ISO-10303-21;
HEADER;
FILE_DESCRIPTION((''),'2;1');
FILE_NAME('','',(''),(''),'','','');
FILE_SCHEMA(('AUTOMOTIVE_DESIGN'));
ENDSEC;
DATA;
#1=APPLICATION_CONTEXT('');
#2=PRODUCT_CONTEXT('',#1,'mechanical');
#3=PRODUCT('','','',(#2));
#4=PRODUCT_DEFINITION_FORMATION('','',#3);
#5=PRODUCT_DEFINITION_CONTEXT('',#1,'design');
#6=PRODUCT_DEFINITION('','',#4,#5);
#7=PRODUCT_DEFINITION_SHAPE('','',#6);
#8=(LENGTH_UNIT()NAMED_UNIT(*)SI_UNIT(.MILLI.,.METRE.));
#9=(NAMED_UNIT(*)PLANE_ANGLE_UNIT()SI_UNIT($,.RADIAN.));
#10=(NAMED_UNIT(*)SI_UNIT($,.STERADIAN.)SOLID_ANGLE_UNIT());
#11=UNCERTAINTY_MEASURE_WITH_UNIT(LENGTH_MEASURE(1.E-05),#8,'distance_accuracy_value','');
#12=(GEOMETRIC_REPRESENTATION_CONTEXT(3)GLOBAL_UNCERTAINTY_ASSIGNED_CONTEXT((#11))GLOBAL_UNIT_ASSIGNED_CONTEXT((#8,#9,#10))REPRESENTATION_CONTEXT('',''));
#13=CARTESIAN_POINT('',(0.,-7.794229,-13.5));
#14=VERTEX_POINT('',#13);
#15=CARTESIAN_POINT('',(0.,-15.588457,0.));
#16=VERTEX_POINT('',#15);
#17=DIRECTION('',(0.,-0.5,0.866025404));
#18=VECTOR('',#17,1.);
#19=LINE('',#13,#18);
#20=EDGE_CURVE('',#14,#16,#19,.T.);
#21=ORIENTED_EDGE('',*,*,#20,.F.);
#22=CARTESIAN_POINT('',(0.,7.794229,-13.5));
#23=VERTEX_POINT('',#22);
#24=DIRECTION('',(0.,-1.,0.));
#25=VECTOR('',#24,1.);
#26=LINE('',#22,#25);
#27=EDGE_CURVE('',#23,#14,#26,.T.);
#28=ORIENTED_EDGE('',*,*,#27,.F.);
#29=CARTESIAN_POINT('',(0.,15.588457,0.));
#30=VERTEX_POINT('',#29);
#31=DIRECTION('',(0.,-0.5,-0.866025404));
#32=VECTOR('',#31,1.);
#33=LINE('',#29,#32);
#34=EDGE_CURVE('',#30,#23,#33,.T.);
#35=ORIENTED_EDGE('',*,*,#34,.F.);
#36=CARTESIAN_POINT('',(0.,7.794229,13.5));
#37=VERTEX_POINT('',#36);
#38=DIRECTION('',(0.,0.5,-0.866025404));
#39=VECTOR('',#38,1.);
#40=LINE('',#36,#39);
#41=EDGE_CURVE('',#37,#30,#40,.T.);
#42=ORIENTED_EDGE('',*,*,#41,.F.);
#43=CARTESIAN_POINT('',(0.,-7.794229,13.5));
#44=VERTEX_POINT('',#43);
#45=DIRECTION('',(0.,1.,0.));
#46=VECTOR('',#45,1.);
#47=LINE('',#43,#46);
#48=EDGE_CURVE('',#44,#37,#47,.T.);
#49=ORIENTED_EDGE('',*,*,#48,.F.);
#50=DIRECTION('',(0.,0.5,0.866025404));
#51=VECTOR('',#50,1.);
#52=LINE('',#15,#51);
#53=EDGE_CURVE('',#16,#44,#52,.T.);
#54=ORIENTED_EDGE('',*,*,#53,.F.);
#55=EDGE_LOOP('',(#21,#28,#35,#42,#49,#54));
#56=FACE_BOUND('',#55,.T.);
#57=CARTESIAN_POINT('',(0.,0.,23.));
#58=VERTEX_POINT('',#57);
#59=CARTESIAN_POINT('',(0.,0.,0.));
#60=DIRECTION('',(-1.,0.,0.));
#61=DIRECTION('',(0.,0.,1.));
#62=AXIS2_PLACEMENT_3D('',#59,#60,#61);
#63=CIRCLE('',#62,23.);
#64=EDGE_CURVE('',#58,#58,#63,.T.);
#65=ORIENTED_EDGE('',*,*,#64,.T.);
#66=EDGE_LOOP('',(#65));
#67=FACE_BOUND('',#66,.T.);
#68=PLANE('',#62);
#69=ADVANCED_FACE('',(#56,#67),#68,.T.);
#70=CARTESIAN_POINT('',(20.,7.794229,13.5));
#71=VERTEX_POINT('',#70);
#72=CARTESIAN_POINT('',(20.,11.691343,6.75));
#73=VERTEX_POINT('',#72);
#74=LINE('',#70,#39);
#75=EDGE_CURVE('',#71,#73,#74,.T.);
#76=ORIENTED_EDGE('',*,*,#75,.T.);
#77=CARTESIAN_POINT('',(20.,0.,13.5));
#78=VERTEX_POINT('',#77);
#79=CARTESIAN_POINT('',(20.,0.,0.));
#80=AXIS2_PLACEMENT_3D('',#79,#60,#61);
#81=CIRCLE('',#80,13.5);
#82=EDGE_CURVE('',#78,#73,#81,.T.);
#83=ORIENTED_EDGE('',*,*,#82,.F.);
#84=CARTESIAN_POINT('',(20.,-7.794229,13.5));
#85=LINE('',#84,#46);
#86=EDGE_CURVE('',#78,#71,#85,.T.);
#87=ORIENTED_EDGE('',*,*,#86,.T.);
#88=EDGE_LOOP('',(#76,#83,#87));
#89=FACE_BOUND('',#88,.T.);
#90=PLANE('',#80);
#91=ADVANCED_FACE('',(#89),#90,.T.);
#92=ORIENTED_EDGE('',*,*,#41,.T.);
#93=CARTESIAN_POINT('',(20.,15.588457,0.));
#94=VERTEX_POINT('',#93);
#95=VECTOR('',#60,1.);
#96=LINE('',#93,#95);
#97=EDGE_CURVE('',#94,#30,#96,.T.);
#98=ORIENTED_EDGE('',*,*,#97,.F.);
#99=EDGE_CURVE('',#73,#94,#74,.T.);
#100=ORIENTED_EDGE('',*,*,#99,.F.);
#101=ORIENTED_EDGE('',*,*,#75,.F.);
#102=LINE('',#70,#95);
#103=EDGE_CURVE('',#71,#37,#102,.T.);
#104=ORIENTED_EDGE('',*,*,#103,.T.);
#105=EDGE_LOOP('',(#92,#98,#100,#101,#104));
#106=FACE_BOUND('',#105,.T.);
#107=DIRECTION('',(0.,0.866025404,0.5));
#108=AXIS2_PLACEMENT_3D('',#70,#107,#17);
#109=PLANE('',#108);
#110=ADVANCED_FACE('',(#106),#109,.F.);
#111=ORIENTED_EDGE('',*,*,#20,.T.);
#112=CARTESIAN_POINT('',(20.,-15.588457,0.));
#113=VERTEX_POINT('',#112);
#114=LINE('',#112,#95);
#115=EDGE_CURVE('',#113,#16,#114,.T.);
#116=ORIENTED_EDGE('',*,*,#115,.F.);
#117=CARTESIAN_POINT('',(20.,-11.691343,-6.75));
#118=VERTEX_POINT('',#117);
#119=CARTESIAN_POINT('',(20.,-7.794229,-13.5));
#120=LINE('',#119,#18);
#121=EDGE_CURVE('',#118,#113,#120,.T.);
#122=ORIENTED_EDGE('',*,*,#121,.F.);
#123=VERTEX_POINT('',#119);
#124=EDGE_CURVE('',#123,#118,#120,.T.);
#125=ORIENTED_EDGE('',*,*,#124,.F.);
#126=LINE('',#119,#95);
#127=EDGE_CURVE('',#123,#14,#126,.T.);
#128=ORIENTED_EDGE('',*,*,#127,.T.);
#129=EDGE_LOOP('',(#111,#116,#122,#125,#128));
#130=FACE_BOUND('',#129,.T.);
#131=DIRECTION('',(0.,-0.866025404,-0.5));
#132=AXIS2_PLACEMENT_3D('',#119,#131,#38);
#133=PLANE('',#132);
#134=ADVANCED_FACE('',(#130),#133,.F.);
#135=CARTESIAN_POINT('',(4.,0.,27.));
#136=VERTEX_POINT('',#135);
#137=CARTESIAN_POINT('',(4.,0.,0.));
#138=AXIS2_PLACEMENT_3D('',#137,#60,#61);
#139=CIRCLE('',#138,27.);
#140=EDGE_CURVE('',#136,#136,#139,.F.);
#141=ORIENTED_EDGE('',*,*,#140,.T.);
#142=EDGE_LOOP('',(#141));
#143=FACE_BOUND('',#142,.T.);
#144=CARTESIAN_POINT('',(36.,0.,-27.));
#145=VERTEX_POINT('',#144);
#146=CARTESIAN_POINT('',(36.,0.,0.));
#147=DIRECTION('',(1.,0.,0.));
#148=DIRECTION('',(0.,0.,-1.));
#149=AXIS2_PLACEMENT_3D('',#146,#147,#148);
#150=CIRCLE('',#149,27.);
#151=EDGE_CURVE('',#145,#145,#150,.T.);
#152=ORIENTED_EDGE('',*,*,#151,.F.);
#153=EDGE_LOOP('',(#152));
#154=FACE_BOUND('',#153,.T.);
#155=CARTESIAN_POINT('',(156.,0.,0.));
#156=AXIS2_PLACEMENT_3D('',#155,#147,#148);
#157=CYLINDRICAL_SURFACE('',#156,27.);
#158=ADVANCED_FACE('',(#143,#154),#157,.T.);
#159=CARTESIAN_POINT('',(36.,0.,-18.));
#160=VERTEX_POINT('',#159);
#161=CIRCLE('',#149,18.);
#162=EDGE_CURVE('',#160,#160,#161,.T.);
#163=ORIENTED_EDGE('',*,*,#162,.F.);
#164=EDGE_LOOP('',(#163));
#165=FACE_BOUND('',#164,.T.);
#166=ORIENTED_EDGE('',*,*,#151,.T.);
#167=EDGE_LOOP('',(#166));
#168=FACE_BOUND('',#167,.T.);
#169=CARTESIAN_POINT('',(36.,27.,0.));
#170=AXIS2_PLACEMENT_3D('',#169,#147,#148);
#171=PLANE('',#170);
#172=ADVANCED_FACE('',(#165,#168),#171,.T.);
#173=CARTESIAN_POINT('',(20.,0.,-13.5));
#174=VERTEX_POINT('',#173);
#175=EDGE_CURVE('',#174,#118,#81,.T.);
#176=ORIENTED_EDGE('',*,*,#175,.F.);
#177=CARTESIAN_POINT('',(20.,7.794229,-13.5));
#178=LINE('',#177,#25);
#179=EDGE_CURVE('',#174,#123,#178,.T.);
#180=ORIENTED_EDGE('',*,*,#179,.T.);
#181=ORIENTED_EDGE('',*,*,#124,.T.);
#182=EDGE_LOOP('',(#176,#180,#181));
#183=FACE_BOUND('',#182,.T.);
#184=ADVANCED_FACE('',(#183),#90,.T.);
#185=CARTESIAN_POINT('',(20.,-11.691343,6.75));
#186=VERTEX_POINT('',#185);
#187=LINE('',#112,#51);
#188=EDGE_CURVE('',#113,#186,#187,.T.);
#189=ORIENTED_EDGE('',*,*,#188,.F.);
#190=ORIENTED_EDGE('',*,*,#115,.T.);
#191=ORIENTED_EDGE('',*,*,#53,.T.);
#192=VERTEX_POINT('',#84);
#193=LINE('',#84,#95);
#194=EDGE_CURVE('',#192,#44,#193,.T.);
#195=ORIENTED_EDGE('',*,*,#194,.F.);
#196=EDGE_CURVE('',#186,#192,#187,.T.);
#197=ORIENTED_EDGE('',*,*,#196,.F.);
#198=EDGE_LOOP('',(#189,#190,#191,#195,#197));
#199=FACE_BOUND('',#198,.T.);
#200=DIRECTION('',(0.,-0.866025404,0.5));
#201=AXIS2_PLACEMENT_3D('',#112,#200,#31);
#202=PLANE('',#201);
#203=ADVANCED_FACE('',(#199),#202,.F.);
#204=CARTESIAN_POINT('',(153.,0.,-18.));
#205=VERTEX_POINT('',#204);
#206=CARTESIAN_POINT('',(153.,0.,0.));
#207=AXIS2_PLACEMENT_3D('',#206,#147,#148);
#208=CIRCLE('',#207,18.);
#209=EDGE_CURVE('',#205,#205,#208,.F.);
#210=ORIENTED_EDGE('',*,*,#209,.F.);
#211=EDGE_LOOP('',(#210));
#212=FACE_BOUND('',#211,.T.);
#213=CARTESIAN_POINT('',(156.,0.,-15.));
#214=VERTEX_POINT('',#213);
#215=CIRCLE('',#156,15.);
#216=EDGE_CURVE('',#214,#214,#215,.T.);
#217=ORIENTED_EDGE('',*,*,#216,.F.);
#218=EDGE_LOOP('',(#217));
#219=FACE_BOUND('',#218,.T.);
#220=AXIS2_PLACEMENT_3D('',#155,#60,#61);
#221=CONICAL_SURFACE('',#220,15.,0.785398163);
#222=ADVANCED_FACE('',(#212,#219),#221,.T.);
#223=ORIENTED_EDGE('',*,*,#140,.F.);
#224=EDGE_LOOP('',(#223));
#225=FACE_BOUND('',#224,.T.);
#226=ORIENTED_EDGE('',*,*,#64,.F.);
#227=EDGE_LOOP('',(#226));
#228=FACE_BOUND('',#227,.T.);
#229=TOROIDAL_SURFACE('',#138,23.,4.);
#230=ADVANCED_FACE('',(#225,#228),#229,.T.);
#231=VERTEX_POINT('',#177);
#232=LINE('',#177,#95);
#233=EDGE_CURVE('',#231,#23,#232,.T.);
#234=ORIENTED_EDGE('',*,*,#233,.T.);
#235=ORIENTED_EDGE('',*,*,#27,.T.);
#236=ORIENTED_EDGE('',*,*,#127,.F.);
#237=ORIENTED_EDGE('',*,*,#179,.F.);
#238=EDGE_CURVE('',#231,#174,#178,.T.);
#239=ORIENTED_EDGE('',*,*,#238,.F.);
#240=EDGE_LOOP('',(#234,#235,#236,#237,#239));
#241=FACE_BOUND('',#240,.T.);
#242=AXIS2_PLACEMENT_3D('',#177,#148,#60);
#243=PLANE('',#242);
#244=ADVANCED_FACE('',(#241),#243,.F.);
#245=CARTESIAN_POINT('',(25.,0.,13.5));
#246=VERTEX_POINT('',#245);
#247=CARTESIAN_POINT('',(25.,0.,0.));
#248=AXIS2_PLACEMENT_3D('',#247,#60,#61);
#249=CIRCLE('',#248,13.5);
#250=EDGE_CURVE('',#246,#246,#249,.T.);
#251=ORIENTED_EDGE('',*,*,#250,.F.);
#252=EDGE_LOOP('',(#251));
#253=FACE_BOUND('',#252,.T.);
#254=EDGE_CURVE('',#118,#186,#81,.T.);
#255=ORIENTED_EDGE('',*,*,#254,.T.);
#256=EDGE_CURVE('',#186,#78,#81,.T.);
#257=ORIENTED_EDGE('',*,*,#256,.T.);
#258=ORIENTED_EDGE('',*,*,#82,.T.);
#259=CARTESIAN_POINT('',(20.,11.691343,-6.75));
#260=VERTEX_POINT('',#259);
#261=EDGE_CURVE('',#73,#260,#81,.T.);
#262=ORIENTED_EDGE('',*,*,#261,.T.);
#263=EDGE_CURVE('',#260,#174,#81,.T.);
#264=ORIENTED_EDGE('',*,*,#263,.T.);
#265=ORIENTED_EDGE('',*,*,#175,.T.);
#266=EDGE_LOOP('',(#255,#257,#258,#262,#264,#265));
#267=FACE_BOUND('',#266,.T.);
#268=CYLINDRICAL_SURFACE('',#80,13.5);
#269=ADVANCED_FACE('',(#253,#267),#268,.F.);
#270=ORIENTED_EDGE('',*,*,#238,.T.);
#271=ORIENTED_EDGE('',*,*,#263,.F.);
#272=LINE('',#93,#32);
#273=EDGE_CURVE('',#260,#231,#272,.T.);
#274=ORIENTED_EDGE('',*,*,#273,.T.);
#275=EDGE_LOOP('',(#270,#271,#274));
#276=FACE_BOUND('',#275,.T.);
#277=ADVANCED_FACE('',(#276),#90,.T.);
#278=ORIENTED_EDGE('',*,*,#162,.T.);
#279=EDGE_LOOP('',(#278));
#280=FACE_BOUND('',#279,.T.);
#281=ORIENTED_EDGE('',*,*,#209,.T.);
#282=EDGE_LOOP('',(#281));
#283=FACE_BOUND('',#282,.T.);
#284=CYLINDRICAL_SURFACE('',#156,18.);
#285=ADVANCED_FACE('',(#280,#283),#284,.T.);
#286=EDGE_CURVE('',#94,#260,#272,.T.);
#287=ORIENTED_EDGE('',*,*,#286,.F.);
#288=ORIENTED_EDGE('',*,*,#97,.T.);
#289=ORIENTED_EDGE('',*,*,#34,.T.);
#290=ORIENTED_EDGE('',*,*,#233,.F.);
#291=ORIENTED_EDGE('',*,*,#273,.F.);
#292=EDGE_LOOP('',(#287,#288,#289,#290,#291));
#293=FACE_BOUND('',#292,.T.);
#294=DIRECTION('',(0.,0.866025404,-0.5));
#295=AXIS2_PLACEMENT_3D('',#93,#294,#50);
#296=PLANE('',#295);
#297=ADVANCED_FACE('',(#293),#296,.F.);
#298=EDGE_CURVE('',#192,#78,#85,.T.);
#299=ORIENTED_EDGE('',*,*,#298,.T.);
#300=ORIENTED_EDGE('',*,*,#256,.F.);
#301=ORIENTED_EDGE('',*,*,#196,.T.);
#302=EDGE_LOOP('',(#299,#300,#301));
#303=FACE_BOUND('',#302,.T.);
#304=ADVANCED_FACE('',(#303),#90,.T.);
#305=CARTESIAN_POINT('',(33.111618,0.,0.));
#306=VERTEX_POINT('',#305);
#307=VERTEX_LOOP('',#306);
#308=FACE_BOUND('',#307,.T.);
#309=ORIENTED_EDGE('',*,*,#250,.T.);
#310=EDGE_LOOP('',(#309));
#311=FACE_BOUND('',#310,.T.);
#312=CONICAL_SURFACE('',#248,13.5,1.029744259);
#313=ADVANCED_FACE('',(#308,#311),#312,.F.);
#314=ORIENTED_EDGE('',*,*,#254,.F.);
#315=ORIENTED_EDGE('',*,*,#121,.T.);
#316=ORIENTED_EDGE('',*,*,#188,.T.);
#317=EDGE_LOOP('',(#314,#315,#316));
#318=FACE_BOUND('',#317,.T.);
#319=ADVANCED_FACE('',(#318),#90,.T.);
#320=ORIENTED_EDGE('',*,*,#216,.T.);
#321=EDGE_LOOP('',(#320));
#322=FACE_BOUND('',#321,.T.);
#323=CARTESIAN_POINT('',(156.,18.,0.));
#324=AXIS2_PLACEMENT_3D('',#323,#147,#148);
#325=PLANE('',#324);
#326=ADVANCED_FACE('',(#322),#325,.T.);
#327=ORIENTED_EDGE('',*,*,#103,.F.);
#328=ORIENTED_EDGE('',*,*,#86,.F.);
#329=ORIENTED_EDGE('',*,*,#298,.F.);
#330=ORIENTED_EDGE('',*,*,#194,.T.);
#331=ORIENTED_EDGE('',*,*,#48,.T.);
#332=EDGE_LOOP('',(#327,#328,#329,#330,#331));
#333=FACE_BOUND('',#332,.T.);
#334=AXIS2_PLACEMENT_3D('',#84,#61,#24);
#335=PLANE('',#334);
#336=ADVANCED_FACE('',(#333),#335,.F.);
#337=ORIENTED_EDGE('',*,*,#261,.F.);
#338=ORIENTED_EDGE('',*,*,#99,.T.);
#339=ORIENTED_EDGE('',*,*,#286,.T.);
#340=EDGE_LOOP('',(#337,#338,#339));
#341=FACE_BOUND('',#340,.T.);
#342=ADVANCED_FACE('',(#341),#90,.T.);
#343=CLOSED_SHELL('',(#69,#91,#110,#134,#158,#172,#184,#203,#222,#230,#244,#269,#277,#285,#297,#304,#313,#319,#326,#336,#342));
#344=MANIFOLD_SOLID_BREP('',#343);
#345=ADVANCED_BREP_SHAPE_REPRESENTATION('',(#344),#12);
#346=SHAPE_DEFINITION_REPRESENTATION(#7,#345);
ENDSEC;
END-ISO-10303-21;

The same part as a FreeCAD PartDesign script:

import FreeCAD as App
import Part
import Sketcher
from FreeCAD import Vector
Q = App.Units.Quantity


def edges_at(feature, points):
    """Names of the edges that pass closest to the given points."""
    edges = feature.Shape.Edges
    near = lambda p: min(range(len(edges)), key=lambda i: edges[i].distToShape(Part.Vertex(*p))[0])
    return sorted({f"Edge{near(p) + 1}" for p in points})


def add_polygon(sketch, points):
    """Adds a closed chain of lines whose ends are joined by coincident constraints."""
    first, n = sketch.GeometryCount, len(points)
    for a, b in zip(points, points[1:] + points[:1]):
        sketch.addGeometry(Part.LineSegment(App.Vector(*a, 0), App.Vector(*b, 0)), False)
    for i in range(n):
        sketch.addConstraint(Sketcher.Constraint("Coincident", first + i, 2, first + (i + 1) % n, 1))

doc = App.newDocument("Part")
body = doc.addObject("PartDesign::Body", "Body")

sketch1 = doc.addObject("Sketcher::SketchObject", "Sketch")
body.addObject(sketch1)
sketch1.AttachmentSupport = (doc.XY_Plane, [""])
sketch1.MapMode = "FlatFace"
add_polygon(sketch1, [(0, 27), (0, 0), (156, 0), (156, 18), (36, 18), (36, 27)])
sketch1.addConstraint([
    Sketcher.Constraint("Vertical", 0),
    Sketcher.Constraint("Horizontal", 1),
    Sketcher.Constraint("Vertical", 2),
    Sketcher.Constraint("Horizontal", 3),
    Sketcher.Constraint("Vertical", 4),
    Sketcher.Constraint("Horizontal", 5),
    Sketcher.Constraint("Coincident", 0, 2, -1, 1),
    Sketcher.Constraint("DistanceX", 1, 1, 1, 2, 156.0),
    Sketcher.Constraint("DistanceX", 3, 2, 3, 1, 120.0),
    Sketcher.Constraint("DistanceY", 0, 2, 0, 1, 27.0),
    Sketcher.Constraint("DistanceY", 2, 1, 2, 2, 18.0),
])
revolution = doc.addObject("PartDesign::Revolution", "Revolution")
body.addObject(revolution)
revolution.Profile = sketch1
revolution.ReferenceAxis = (sketch1, ["H_Axis"])
revolution.Angle = 360

sketch2 = doc.addObject("Sketcher::SketchObject", "Sketch001")
body.addObject(sketch2)
sketch2.AttachmentSupport = (doc.YZ_Plane, [""])
sketch2.MapMode = "FlatFace"
add_polygon(sketch2, [(16, 0), (8, -14), (-8, -14), (-16, 0), (-8, 14), (8, 14)])
sketch2.addConstraint([
    Sketcher.Constraint("Horizontal", 1),
    Sketcher.Constraint("Horizontal", 4),
    Sketcher.Constraint("Symmetric", 0, 2, 3, 2, -1, 1),
    Sketcher.Constraint("Symmetric", 2, 2, 5, 2, -1, 1),
    Sketcher.Constraint("PointOnObject", 2, 2, -1),
    Sketcher.Constraint("Parallel", 2, 5),
    Sketcher.Constraint("Vertical", 1, 2, 3, 2),
    Sketcher.Constraint("Angle", 0, Q("-120 deg")),
    Sketcher.Constraint("DistanceY", 1, 2, 3, 2, 27.0),
    Sketcher.Constraint("DistanceX", 1, 2, 1, 1, 15.588457),
])
pocket1 = doc.addObject("PartDesign::Pocket", "Pocket")
body.addObject(pocket1)
pocket1.Profile = sketch2
pocket1.Length = 20
pocket1.Reversed = True

sketch3 = doc.addObject("Sketcher::SketchObject", "Sketch002")
body.addObject(sketch3)
sketch3.AttachmentSupport = (doc.YZ_Plane, [""])
sketch3.MapMode = "FlatFace"
sketch3.AttachmentOffset = App.Placement(Vector(0, 0, 20), App.Rotation())
sketch3.addGeometry(Part.Circle(Vector(0, 0, 0), Vector(0, 0, 1), 14), False)
sketch3.addConstraint([
    Sketcher.Constraint("Coincident", 0, 3, -1, 1),
    Sketcher.Constraint("Diameter", 0, 27.0),
])
doc.recompute()
hole = doc.addObject("PartDesign::Hole", "Hole")
body.addObject(hole)
hole.Profile = sketch3
hole.ThreadType = "None"
hole.Diameter = 27
hole.DepthType = "Dimension"
hole.Depth = 5
hole.DrillPoint = "Angled"
hole.DrillPointAngle = 118
hole.Reversed = True
doc.recompute()

fillet = doc.addObject("PartDesign::Fillet", "Fillet")
body.addObject(fillet)
fillet.Base = (hole, edges_at(hole, [(0, 0, 27)]))
fillet.Radius = 4
doc.recompute()

chamfer = doc.addObject("PartDesign::Chamfer", "Chamfer")
body.addObject(chamfer)
chamfer.Base = (fillet, edges_at(fillet, [(156, 0, 18)]))
chamfer.Size = 3

doc.recompute()
